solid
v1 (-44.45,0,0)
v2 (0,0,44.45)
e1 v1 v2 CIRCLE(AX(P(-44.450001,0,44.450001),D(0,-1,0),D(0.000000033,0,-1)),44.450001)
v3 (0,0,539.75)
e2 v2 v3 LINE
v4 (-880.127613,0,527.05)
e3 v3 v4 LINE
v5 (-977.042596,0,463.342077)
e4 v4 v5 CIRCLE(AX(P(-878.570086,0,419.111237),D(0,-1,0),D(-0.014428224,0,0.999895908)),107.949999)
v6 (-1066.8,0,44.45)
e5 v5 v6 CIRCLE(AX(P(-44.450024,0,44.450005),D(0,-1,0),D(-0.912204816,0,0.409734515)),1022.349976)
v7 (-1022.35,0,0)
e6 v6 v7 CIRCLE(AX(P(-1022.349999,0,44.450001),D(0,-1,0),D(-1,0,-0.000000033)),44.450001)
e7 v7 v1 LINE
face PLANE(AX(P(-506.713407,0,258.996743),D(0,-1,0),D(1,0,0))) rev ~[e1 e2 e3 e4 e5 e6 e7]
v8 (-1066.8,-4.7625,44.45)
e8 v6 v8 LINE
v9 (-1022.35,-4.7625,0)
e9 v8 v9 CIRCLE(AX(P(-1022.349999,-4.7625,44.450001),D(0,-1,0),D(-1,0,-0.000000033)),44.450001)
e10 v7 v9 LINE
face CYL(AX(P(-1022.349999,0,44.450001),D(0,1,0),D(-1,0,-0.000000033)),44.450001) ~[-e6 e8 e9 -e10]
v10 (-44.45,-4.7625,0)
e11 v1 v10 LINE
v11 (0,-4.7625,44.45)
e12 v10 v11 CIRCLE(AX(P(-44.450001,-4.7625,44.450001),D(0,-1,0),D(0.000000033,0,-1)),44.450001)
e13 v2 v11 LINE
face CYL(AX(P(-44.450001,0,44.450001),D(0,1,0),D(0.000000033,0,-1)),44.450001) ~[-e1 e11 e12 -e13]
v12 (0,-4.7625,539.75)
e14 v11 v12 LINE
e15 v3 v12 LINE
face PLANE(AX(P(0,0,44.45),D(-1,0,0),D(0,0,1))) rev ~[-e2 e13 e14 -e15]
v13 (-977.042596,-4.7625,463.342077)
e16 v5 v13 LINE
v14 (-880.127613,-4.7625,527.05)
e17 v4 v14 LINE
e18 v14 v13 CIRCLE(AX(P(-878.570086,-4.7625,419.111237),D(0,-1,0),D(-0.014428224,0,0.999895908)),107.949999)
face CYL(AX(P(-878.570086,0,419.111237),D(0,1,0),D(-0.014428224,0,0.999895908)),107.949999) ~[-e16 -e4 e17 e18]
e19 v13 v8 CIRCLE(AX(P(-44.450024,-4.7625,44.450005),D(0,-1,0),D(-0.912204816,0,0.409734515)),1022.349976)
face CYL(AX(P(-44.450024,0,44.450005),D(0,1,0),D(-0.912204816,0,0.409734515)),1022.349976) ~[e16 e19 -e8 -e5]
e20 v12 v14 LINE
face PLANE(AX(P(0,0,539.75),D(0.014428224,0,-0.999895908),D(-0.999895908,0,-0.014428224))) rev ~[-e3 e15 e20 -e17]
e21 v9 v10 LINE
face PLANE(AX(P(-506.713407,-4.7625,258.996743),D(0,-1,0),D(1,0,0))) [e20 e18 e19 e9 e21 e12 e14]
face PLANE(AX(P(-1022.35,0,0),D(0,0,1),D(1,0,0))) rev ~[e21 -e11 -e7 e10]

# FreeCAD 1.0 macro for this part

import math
import FreeCAD as App
import Part
import Sketcher
from FreeCAD import Vector
Q = App.Units.Quantity

doc = App.newDocument("Part")
body = doc.addObject("PartDesign::Body", "Body")

# Sketch on XZ plane
sketch1 = doc.addObject("Sketcher::SketchObject", "Sketch")
body.addObject(sketch1)
sketch1.AttachmentSupport = (doc.XZ_Plane, [""])
sketch1.MapMode = "FlatFace"
sketch1.addGeometry([
    Part.ArcOfCircle(Part.Circle(Vector(-44.450001, 44.450001, 0), Vector(0, 0, 1), 44.450001), math.radians(-89.999998), math.radians(-0.000002)),  # 0
    Part.LineSegment(Vector(0, 44.45, 0), Vector(0, 539.75, 0)),  # 1
    Part.LineSegment(Vector(0, 539.75, 0), Vector(-880.127613, 527.05, 0)),  # 2
    Part.ArcOfCircle(Part.Circle(Vector(-878.570086, 419.111237, 0), Vector(0, 0, 1), 107.949999), math.radians(90.826705), math.radians(155.811842)),  # 3
    Part.ArcOfCircle(Part.Circle(Vector(-44.450024, 44.450005, 0), Vector(0, 0, 1), 1022.349976), math.radians(155.811841), math.radians(180)),  # 4
    Part.ArcOfCircle(Part.Circle(Vector(-1022.349999, 44.450001, 0), Vector(0, 0, 1), 44.450001), math.radians(-179.999998), math.radians(-90.000002)),  # 5
    Part.LineSegment(Vector(-1022.35, 0, 0), Vector(-44.45, 0, 0)),  # 6
], False)
sketch1.addConstraint([
    Sketcher.Constraint("Tangent", 0, 2, 1, 1),
    Sketcher.Constraint("Coincident", 1, 2, 2, 1),
    Sketcher.Constraint("Tangent", 2, 2, 3, 1),
    Sketcher.Constraint("Tangent", 3, 2, 4, 1),
    Sketcher.Constraint("Tangent", 4, 2, 5, 1),
    Sketcher.Constraint("Tangent", 5, 2, 6, 1),
    Sketcher.Constraint("Tangent", 6, 2, 0, 1),
    Sketcher.Constraint("Vertical", 1),
    Sketcher.Constraint("Horizontal", 6),
    Sketcher.Constraint("Equal", 0, 5),
    Sketcher.Constraint("PointOnObject", 0, 2, -2),
    Sketcher.Constraint("PointOnObject", 5, 2, -1),
    Sketcher.Constraint("Radius", 0, Q("1.7500001 in")),
    Sketcher.Constraint("Radius", 3, Q("4.25 in")),
    Sketcher.Constraint("DistanceX", 6, 1, 6, 2, Q("38.5 in")),
    Sketcher.Constraint("DistanceY", 1, 1, 1, 2, Q("19.5 in")),
    Sketcher.Constraint("DistanceY", 5, 3, 2, 2, Q("18.9999999 in")),
    Sketcher.Constraint("DistanceY", 4, 3, 2, 2, Q("18.9999998 in")),
    Sketcher.Constraint("Radius", 4, 1022.349976),
])
pad1 = doc.addObject("PartDesign::Pad", "Pad")
body.addObject(pad1)
pad1.Profile = sketch1
pad1.Length = Q("0.1875 in")

doc.recompute()
